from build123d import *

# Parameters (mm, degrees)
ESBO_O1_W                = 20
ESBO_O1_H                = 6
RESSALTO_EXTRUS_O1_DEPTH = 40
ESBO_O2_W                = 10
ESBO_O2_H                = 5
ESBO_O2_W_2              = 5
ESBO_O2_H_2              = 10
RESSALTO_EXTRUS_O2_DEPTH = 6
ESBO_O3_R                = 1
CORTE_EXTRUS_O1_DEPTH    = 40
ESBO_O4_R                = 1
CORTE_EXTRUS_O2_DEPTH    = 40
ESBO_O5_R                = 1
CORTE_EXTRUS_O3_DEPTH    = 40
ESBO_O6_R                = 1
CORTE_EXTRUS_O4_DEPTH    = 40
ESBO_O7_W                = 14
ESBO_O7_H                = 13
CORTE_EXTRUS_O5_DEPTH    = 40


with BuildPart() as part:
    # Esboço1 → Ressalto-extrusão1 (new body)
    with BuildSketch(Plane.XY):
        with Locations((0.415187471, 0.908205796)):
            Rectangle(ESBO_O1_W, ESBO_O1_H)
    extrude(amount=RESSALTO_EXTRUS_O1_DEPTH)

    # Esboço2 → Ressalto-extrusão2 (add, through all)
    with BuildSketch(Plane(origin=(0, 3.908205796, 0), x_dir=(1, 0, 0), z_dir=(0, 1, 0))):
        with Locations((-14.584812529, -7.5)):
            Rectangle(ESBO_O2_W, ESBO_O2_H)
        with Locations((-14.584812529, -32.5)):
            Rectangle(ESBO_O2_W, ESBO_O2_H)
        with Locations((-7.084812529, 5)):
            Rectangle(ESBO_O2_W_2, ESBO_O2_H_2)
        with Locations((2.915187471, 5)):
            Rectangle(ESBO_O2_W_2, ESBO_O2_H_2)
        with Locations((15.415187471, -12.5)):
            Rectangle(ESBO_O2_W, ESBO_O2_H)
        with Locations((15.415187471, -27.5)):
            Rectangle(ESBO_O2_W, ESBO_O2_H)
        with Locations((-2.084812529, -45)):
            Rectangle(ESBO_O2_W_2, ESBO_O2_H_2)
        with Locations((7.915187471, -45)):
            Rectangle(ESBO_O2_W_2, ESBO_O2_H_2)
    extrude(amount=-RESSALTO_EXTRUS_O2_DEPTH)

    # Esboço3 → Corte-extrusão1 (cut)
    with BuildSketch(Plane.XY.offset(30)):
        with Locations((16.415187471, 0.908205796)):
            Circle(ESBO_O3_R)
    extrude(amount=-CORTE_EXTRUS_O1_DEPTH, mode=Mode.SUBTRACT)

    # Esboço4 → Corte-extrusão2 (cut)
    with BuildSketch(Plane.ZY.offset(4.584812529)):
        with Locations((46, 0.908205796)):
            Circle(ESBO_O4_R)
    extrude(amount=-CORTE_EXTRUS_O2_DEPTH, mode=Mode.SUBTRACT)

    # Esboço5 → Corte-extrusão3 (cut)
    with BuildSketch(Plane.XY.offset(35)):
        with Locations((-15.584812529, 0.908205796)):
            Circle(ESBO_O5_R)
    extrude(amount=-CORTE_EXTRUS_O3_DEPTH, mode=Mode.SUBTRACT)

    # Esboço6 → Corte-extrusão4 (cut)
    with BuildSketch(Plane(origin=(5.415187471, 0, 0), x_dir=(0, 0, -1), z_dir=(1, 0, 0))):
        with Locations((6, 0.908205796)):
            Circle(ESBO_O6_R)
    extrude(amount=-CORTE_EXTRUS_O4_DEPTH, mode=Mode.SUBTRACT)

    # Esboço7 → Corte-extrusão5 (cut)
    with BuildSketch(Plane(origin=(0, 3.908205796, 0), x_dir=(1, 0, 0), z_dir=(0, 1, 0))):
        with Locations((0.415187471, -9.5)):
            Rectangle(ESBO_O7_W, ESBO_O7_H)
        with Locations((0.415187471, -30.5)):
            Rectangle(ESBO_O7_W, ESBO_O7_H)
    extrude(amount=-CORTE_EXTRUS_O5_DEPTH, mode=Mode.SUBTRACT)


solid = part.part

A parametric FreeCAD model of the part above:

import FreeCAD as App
import Part
import Sketcher


def add_polygon(sketch, points):
    """Adds a closed chain of lines whose ends are joined by coincident constraints."""
    first, n = sketch.GeometryCount, len(points)
    for a, b in zip(points, points[1:] + points[:1]):
        sketch.addGeometry(Part.LineSegment(App.Vector(*a, 0), App.Vector(*b, 0)), False)
    for i in range(n):
        sketch.addConstraint(Sketcher.Constraint("Coincident", first + i, 2, first + (i + 1) % n, 1))

doc = App.newDocument("Part")
body = doc.addObject("PartDesign::Body", "Body")

sketch1 = body.newObject("Sketcher::SketchObject", "Sketch")
sketch1.AttachmentSupport = (doc.getObject("XY_Plane"), [""])
sketch1.MapMode = "FlatFace"
add_polygon(sketch1, [(-10, 4), (-10, -2), (10, -2), (10, 4)])
sketch1.addConstraint(Sketcher.Constraint("Vertical", 0))
sketch1.addConstraint(Sketcher.Constraint("Horizontal", 1))
sketch1.addConstraint(Sketcher.Constraint("Vertical", 2))
sketch1.addConstraint(Sketcher.Constraint("Horizontal", 3))
sketch1.addConstraint(Sketcher.Constraint("DistanceX", 1, 1, 1, 2, 20.0))
sketch1.addConstraint(Sketcher.Constraint("DistanceY", 0, 2, 0, 1, 6.0))
sketch1.addConstraint(Sketcher.Constraint("DistanceX", 0, 2, -1, 1, 9.584813))
sketch1.addConstraint(Sketcher.Constraint("DistanceY", 0, 2, -1, 1, 2.091794))
pad1 = body.newObject("PartDesign::Pad", "Pad")
pad1.Profile = sketch1
pad1.Length = 40

sketch2 = body.newObject("Sketcher::SketchObject", "Sketch001")
sketch2.AttachmentSupport = (doc.getObject("XZ_Plane"), [""])
sketch2.MapMode = "FlatFace"
sketch2.AttachmentOffset = App.Placement(App.Vector(0, 0, -3.908206), App.Rotation())
add_polygon(sketch2, [(-19.6, 5), (-19.6, 10), (-9.6, 10), (-9.6, 5)])
add_polygon(sketch2, [(-19.6, 30), (-19.6, 35), (-9.6, 35), (-9.6, 30)])
add_polygon(sketch2, [(-9.6, -10), (-9.6, 0), (-4.6, 0), (-4.6, -10)])
add_polygon(sketch2, [(0.4, -10), (0.4, 0), (5.4, 0), (5.4, -10)])
add_polygon(sketch2, [(10.4, 10), (10.4, 15), (20.4, 15), (20.4, 10)])
add_polygon(sketch2, [(10.4, 25), (10.4, 30), (20.4, 30), (20.4, 25)])
add_polygon(sketch2, [(-4.6, 40), (-4.6, 50), (0.4, 50), (0.4, 40)])
add_polygon(sketch2, [(5.4, 40), (5.4, 50), (10.4, 50), (10.4, 40)])
sketch2.addConstraint(Sketcher.Constraint("Vertical", 0))
sketch2.addConstraint(Sketcher.Constraint("Horizontal", 1))
sketch2.addConstraint(Sketcher.Constraint("Vertical", 2))
sketch2.addConstraint(Sketcher.Constraint("Horizontal", 3))
sketch2.addConstraint(Sketcher.Constraint("Vertical", 4))
sketch2.addConstraint(Sketcher.Constraint("Horizontal", 5))
sketch2.addConstraint(Sketcher.Constraint("Vertical", 6))
sketch2.addConstraint(Sketcher.Constraint("Horizontal", 7))
sketch2.addConstraint(Sketcher.Constraint("Vertical", 8))
sketch2.addConstraint(Sketcher.Constraint("Horizontal", 9))
sketch2.addConstraint(Sketcher.Constraint("Vertical", 10))
sketch2.addConstraint(Sketcher.Constraint("Horizontal", 11))
sketch2.addConstraint(Sketcher.Constraint("Vertical", 12))
sketch2.addConstraint(Sketcher.Constraint("Horizontal", 13))
sketch2.addConstraint(Sketcher.Constraint("Vertical", 14))
sketch2.addConstraint(Sketcher.Constraint("Horizontal", 15))
sketch2.addConstraint(Sketcher.Constraint("Vertical", 16))
sketch2.addConstraint(Sketcher.Constraint("Horizontal", 17))
sketch2.addConstraint(Sketcher.Constraint("Vertical", 18))
sketch2.addConstraint(Sketcher.Constraint("Horizontal", 19))
sketch2.addConstraint(Sketcher.Constraint("Vertical", 20))
sketch2.addConstraint(Sketcher.Constraint("Horizontal", 21))
sketch2.addConstraint(Sketcher.Constraint("Vertical", 22))
sketch2.addConstraint(Sketcher.Constraint("Horizontal", 23))
sketch2.addConstraint(Sketcher.Constraint("Vertical", 24))
sketch2.addConstraint(Sketcher.Constraint("Horizontal", 25))
sketch2.addConstraint(Sketcher.Constraint("Vertical", 26))
sketch2.addConstraint(Sketcher.Constraint("Horizontal", 27))
sketch2.addConstraint(Sketcher.Constraint("Vertical", 28))
sketch2.addConstraint(Sketcher.Constraint("Horizontal", 29))
sketch2.addConstraint(Sketcher.Constraint("Vertical", 30))
sketch2.addConstraint(Sketcher.Constraint("Horizontal", 31))
sketch2.addConstraint(Sketcher.Constraint("Symmetric", 1, 2, 11, 2, -1))
sketch2.addConstraint(Sketcher.Constraint("PointOnObject", 8, 2, -1))
sketch2.addConstraint(Sketcher.Constraint("PointOnObject", 12, 2, -1))
sketch2.addConstraint(Sketcher.Constraint("Horizontal", 11, 2, 14, 2))
sketch2.addConstraint(Sketcher.Constraint("Horizontal", 1, 2, 18, 2))
sketch2.addConstraint(Sketcher.Constraint("Horizontal", 7, 2, 20, 2))
sketch2.addConstraint(Sketcher.Constraint("Horizontal", 25, 2, 28, 2))
sketch2.addConstraint(Sketcher.Constraint("Horizontal", 27, 2, 30, 2))
sketch2.addConstraint(Sketcher.Constraint("Vertical", 3, 2, 4, 2))
sketch2.addConstraint(Sketcher.Constraint("Vertical", 2, 2, 5, 2))
sketch2.addConstraint(Sketcher.Constraint("Vertical", 19, 2, 20, 2))
sketch2.addConstraint(Sketcher.Constraint("Vertical", 18, 2, 21, 2))
sketch2.addConstraint(Sketcher.Constraint("Vertical", 10, 2, 24, 2))
sketch2.addConstraint(Sketcher.Constraint("Vertical", 15, 2, 25, 2))
sketch2.addConstraint(Sketcher.Constraint("Vertical", 14, 2, 28, 2))
sketch2.addConstraint(Sketcher.Constraint("Vertical", 23, 2, 29, 2))
sketch2.addConstraint(Sketcher.Constraint("Equal", 11, 13))
sketch2.addConstraint(Sketcher.Constraint("Equal", 7, 17))
sketch2.addConstraint(Sketcher.Constraint("Equal", 15, 25))
sketch2.addConstraint(Sketcher.Constraint("Equal", 27, 29))
sketch2.addConstraint(Sketcher.Constraint("Equal", 31, 0))
sketch2.addConstraint(Sketcher.Constraint("Equal", 2, 4))
sketch2.addConstraint(Sketcher.Constraint("Equal", 23, 8))
sketch2.addConstraint(Sketcher.Constraint("Equal", 6, 16))
sketch2.addConstraint(Sketcher.Constraint("Equal", 18, 20))
sketch2.addConstraint(Sketcher.Constraint("Equal", 14, 24))
sketch2.addConstraint(Sketcher.Constraint("DistanceX", 1, 1, 1, 2, 10.0))
sketch2.addConstraint(Sketcher.Constraint("DistanceX", 9, 1, 9, 2, 5.0))
sketch2.addConstraint(Sketcher.Constraint("DistanceY", -1, 1, 4, 2, 35.0))
sketch2.addConstraint(Sketcher.Constraint("DistanceY", -1, 1, 24, 2, 50.0))
sketch2.addConstraint(Sketcher.Constraint("DistanceX", 0, 2, -1, 1, 19.584813))
pad2 = body.newObject("PartDesign::Pad", "Pad001")
pad2.Profile = sketch2
pad2.Type = "UpToLast"

sketch3 = body.newObject("Sketcher::SketchObject", "Sketch002")
sketch3.AttachmentSupport = (doc.getObject("XY_Plane"), [""])
sketch3.MapMode = "FlatFace"
sketch3.AttachmentOffset = App.Placement(App.Vector(0, 0, 30), App.Rotation())
sketch3.addGeometry(Part.Circle(App.Vector(16.4, 0.9, 0), App.Vector(0, 0, 1), 1), False)
sketch3.addConstraint(Sketcher.Constraint("Diameter", 0, 2.0))
sketch3.addConstraint(Sketcher.Constraint("DistanceX", -1, 1, 0, 3, 16.415187))
sketch3.addConstraint(Sketcher.Constraint("DistanceY", -1, 1, 0, 3, 0.908206))
pocket1 = body.newObject("PartDesign::Pocket", "Pocket")
pocket1.Profile = sketch3
pocket1.Length = 40

sketch4 = body.newObject("Sketcher::SketchObject", "Sketch003")
sketch4.AttachmentSupport = (doc.getObject("YZ_Plane"), [""])
sketch4.MapMode = "FlatFace"
sketch4.AttachmentOffset = App.Placement(App.Vector(0, 0, -4.584813), App.Rotation())
sketch4.addGeometry(Part.Circle(App.Vector(0.9, 46, 0), App.Vector(0, 0, 1), 1), False)
sketch4.addConstraint(Sketcher.Constraint("Diameter", 0, 2.0))
sketch4.addConstraint(Sketcher.Constraint("DistanceY", -1, 1, 0, 3, 46.0))
sketch4.addConstraint(Sketcher.Constraint("DistanceX", -1, 1, 0, 3, 0.908206))
pocket2 = body.newObject("PartDesign::Pocket", "Pocket001")
pocket2.Profile = sketch4
pocket2.Length = 40
pocket2.Reversed = True

sketch5 = body.newObject("Sketcher::SketchObject", "Sketch004")
sketch5.AttachmentSupport = (doc.getObject("XY_Plane"), [""])
sketch5.MapMode = "FlatFace"
sketch5.AttachmentOffset = App.Placement(App.Vector(0, 0, 35), App.Rotation())
sketch5.addGeometry(Part.Circle(App.Vector(-15.6, 0.9, 0), App.Vector(0, 0, 1), 1), False)
sketch5.addConstraint(Sketcher.Constraint("Diameter", 0, 2.0))
sketch5.addConstraint(Sketcher.Constraint("DistanceX", 0, 3, -1, 1, 15.584813))
sketch5.addConstraint(Sketcher.Constraint("DistanceY", -1, 1, 0, 3, 0.908206))
pocket3 = body.newObject("PartDesign::Pocket", "Pocket002")
pocket3.Profile = sketch5
pocket3.Length = 40

sketch6 = body.newObject("Sketcher::SketchObject", "Sketch005")
sketch6.AttachmentSupport = (doc.getObject("YZ_Plane"), [""])
sketch6.MapMode = "FlatFace"
sketch6.AttachmentOffset = App.Placement(App.Vector(0, 0, 5.415187), App.Rotation())
sketch6.addGeometry(Part.Circle(App.Vector(0.9, -6, 0), App.Vector(0, 0, 1), 1), False)
sketch6.addConstraint(Sketcher.Constraint("Diameter", 0, 2.0))
sketch6.addConstraint(Sketcher.Constraint("DistanceY", 0, 3, -1, 1, 6.0))
sketch6.addConstraint(Sketcher.Constraint("DistanceX", -1, 1, 0, 3, 0.908206))
pocket4 = body.newObject("PartDesign::Pocket", "Pocket003")
pocket4.Profile = sketch6
pocket4.Length = 40

sketch7 = body.newObject("Sketcher::SketchObject", "Sketch006")
sketch7.AttachmentSupport = (doc.getObject("XZ_Plane"), [""])
sketch7.MapMode = "FlatFace"
sketch7.AttachmentOffset = App.Placement(App.Vector(0, 0, -3.908206), App.Rotation())
add_polygon(sketch7, [(-7, 3), (-7, 16), (7, 16), (7, 3)])
add_polygon(sketch7, [(-7, 24), (-7, 37), (7, 37), (7, 24)])
sketch7.addConstraint(Sketcher.Constraint("Vertical", 0))
sketch7.addConstraint(Sketcher.Constraint("Horizontal", 1))
sketch7.addConstraint(Sketcher.Constraint("Vertical", 2))
sketch7.addConstraint(Sketcher.Constraint("Horizontal", 3))
sketch7.addConstraint(Sketcher.Constraint("Vertical", 4))
sketch7.addConstraint(Sketcher.Constraint("Horizontal", 5))
sketch7.addConstraint(Sketcher.Constraint("Vertical", 6))
sketch7.addConstraint(Sketcher.Constraint("Horizontal", 7))
sketch7.addConstraint(Sketcher.Constraint("Vertical", 3, 2, 4, 2))
sketch7.addConstraint(Sketcher.Constraint("Vertical", 2, 2, 5, 2))
sketch7.addConstraint(Sketcher.Constraint("Equal", 2, 4))
sketch7.addConstraint(Sketcher.Constraint("DistanceX", 1, 1, 1, 2, 14.0))
sketch7.addConstraint(Sketcher.Constraint("DistanceY", 0, 1, 0, 2, 13.0))
sketch7.addConstraint(Sketcher.Constraint("DistanceY", -1, 1, 0, 2, 16.0))
sketch7.addConstraint(Sketcher.Constraint("DistanceY", -1, 1, 4, 2, 37.0))
sketch7.addConstraint(Sketcher.Constraint("DistanceX", 0, 2, -1, 1, 6.584813))
pocket5 = body.newObject("PartDesign::Pocket", "Pocket004")
pocket5.Profile = sketch7
pocket5.Length = 40
pocket5.Reversed = True

doc.recompute()
